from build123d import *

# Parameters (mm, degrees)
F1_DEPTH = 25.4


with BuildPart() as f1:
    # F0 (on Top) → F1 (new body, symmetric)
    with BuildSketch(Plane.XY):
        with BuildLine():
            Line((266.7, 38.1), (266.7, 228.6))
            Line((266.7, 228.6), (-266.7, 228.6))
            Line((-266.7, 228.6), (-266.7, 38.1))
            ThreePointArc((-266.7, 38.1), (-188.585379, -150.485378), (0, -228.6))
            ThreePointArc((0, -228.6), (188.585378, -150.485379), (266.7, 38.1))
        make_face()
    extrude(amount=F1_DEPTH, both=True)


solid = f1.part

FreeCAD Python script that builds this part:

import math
import FreeCAD as App
import Part
import Sketcher

V = App.Vector
Q = App.Units.Quantity

doc = App.newDocument("Part")
body = doc.addObject("PartDesign::Body", "Body")

sketch1 = body.newObject("Sketcher::SketchObject", "Sketch")
sketch1.AttachmentSupport = (doc.getObject("XY_Plane"), [""])
sketch1.MapMode = "FlatFace"
sketch1.addGeometry(Part.LineSegment(V(267, 38, 0), V(267, 229, 0)), False)
sketch1.addGeometry(Part.LineSegment(V(267, 229, 0), V(-267, 229, 0)), False)
sketch1.addGeometry(Part.LineSegment(V(-267, 229, 0), V(-267, 38, 0)), False)
sketch1.addGeometry(Part.ArcOfCircle(Part.Circle(V(0, 38, 0), V(0, 0, 1), 267), math.radians(-180), math.radians(-90)), False)
sketch1.addGeometry(Part.ArcOfCircle(Part.Circle(V(0, 38, 0), V(0, 0, 1), 267), math.radians(-90), math.radians(0)), False)
sketch1.addConstraint(Sketcher.Constraint("Coincident", 0, 2, 1, 1))
sketch1.addConstraint(Sketcher.Constraint("Coincident", 1, 2, 2, 1))
sketch1.addConstraint(Sketcher.Constraint("Tangent", 2, 2, 3, 1))
sketch1.addConstraint(Sketcher.Constraint("Tangent", 3, 2, 4, 1))
sketch1.addConstraint(Sketcher.Constraint("Tangent", 4, 2, 0, 1))
sketch1.addConstraint(Sketcher.Constraint("Vertical", 0))
sketch1.addConstraint(Sketcher.Constraint("Horizontal", 1))
sketch1.addConstraint(Sketcher.Constraint("Vertical", 2))
sketch1.addConstraint(Sketcher.Constraint("Equal", 3, 4))
sketch1.addConstraint(Sketcher.Constraint("PointOnObject", 3, 3, -2))
sketch1.addConstraint(Sketcher.Constraint("PointOnObject", 3, 2, -2))
sketch1.addConstraint(Sketcher.Constraint("Radius", 3, Q("10.5 in")))
sketch1.addConstraint(Sketcher.Constraint("DistanceY", 0, 1, 0, 2, Q("7.5 in")))
sketch1.addConstraint(Sketcher.Constraint("DistanceY", -1, 1, 0, 2, Q("9 in")))
pad1 = body.newObject("PartDesign::Pad", "Pad")
pad1.Profile = sketch1
pad1.Length = Q("2 in")
pad1.Midplane = True

doc.recompute()
